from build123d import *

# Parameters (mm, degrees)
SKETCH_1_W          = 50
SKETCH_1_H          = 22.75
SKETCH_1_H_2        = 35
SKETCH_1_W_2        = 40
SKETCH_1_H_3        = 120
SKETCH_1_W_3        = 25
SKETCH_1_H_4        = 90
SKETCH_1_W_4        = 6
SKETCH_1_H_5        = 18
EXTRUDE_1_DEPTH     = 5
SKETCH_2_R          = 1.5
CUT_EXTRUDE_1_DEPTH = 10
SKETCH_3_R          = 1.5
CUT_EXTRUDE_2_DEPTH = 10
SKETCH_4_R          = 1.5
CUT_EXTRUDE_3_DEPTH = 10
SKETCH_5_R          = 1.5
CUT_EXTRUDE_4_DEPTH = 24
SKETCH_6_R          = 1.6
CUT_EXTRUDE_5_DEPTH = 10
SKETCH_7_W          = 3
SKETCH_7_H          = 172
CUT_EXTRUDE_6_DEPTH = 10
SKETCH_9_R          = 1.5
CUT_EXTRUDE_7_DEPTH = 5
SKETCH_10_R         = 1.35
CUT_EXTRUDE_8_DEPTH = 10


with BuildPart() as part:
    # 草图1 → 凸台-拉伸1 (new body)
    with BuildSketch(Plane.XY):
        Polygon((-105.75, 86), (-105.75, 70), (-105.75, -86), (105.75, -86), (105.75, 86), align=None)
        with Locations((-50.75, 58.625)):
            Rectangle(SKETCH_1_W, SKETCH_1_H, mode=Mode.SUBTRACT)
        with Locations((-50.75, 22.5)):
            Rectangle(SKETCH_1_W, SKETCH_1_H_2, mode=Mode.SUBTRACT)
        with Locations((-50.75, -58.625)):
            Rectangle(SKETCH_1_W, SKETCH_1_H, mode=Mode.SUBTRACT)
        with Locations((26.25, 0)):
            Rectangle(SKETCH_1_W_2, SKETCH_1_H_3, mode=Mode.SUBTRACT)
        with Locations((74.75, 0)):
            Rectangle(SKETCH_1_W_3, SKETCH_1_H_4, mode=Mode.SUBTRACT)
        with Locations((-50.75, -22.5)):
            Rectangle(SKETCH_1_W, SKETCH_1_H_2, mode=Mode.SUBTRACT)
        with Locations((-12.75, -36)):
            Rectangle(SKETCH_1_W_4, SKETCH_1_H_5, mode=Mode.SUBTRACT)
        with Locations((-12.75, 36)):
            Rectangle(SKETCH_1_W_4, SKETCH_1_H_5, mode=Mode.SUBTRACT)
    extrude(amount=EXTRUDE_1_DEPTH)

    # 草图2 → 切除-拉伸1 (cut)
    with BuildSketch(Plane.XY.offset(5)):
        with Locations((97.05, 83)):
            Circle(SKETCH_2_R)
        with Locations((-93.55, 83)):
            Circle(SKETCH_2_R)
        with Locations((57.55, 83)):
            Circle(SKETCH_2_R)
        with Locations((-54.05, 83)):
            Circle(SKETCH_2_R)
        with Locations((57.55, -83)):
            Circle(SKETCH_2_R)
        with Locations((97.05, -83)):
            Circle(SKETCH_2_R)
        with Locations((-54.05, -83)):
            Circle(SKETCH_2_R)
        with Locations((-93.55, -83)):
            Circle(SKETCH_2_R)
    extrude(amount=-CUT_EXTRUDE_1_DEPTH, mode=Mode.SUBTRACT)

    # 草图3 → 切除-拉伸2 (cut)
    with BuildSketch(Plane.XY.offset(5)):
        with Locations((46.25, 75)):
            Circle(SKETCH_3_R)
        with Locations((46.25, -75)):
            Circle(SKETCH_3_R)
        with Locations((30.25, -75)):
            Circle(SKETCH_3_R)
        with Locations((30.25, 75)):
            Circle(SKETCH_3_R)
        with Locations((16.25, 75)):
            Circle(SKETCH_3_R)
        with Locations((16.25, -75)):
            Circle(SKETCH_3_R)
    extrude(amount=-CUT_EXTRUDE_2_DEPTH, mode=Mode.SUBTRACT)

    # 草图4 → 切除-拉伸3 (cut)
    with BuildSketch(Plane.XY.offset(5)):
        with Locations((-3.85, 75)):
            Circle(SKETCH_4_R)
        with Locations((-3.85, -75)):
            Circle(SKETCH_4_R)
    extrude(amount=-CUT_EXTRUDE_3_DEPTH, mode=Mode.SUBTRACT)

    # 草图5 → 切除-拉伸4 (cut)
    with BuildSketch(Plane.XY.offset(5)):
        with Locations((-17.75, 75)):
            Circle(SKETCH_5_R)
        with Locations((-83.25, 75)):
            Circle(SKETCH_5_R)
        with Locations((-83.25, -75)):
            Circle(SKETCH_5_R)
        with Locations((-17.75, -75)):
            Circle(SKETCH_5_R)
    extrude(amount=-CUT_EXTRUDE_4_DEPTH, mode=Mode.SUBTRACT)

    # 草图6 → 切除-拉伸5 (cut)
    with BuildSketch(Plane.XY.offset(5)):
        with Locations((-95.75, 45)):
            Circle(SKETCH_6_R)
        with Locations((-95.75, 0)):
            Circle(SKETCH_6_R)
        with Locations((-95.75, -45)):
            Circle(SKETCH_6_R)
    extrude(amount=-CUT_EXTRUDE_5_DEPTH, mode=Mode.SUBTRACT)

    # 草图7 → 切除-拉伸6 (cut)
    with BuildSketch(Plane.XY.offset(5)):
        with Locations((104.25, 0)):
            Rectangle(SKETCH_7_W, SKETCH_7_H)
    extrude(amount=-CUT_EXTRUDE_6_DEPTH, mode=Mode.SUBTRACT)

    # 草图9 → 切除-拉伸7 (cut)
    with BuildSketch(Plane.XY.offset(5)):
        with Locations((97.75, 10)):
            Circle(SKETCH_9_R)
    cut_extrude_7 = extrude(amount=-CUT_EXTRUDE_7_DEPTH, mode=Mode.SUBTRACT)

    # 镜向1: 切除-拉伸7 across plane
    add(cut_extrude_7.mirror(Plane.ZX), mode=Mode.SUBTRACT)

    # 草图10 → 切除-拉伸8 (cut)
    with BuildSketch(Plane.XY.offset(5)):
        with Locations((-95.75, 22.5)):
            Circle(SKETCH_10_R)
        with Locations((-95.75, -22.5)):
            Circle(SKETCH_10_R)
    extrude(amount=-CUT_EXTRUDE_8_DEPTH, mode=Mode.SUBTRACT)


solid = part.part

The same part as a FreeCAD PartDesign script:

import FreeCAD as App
import Part
import Sketcher

V = App.Vector


def add_polygon(sketch, points):
    """Adds a closed chain of lines whose ends are joined by coincident constraints."""
    first, n = sketch.GeometryCount, len(points)
    for a, b in zip(points, points[1:] + points[:1]):
        sketch.addGeometry(Part.LineSegment(App.Vector(*a, 0), App.Vector(*b, 0)), False)
    for i in range(n):
        sketch.addConstraint(Sketcher.Constraint("Coincident", first + i, 2, first + (i + 1) % n, 1))

doc = App.newDocument("Part")
params = doc.addObject("Spreadsheet::Sheet", "Params")
for row, (alias, value) in enumerate([
    ("sketch1_width", "50 mm"),
    ("sketch1_width2", "6 mm"),
    ("sketch1_width3", "40 mm"),
    ("sketch1_width4", "25 mm"),
    ("sketch1_height", "172 mm"),
    ("pad1_length", "5 mm"),
    ("sketch2_diameter", "3 mm"),
    ("pocket1_length", "10 mm"),
    ("sketch3_diameter", "3 mm"),
    ("pocket2_length", "10 mm"),
    ("sketch4_diameter", "3 mm"),
    ("pocket3_length", "10 mm"),
    ("sketch5_diameter", "3 mm"),
    ("pocket4_length", "24 mm"),
    ("sketch6_diameter", "3.2 mm"),
    ("pocket5_length", "10 mm"),
    ("sketch7_width", "3 mm"),
    ("sketch7_height", "172 mm"),
    ("pocket6_length", "10 mm"),
    ("sketch8_diameter", "3 mm"),
    ("pocket7_length", "5 mm"),
    ("sketch9_diameter", "2.7 mm"),
    ("pocket8_length", "10 mm"),
], start=1):
    params.set(f"A{row}", alias)
    params.set(f"B{row}", "=" + value)
    params.setAlias(f"B{row}", alias)

body = doc.addObject("PartDesign::Body", "Body")

sketch1 = doc.addObject("Sketcher::SketchObject", "Sketch")
body.addObject(sketch1)
sketch1.AttachmentSupport = (doc.XY_Plane, [""])
sketch1.MapMode = "FlatFace"
add_polygon(sketch1, [(-106, 86), (-106, -86), (106, -86), (106, 86)])
add_polygon(sketch1, [(-26, -70), (-76, -70), (-76, -47), (-26, -47)])
add_polygon(sketch1, [(-10, -45), (-16, -45), (-16, -27), (-10, -27)])
add_polygon(sketch1, [(-26, -40), (-76, -40), (-76, -5), (-26, -5)])
add_polygon(sketch1, [(-26, 5), (-76, 5), (-76, 40), (-26, 40)])
add_polygon(sketch1, [(-26, 47), (-76, 47), (-76, 70), (-26, 70)])
add_polygon(sketch1, [(-10, 27), (-16, 27), (-16, 45), (-10, 45)])
add_polygon(sketch1, [(46, -60), (6, -60), (6, 60), (46, 60)])
add_polygon(sketch1, [(87, -45), (62, -45), (62, 45), (87, 45)])
sketch1.addConstraint([
    Sketcher.Constraint("Vertical", 0),
    Sketcher.Constraint("Horizontal", 1),
    Sketcher.Constraint("Vertical", 2),
    Sketcher.Constraint("Horizontal", 3),
    Sketcher.Constraint("Horizontal", 4),
    Sketcher.Constraint("Vertical", 5),
    Sketcher.Constraint("Horizontal", 6),
    Sketcher.Constraint("Vertical", 7),
    Sketcher.Constraint("Horizontal", 8),
    Sketcher.Constraint("Vertical", 9),
    Sketcher.Constraint("Horizontal", 10),
    Sketcher.Constraint("Vertical", 11),
    Sketcher.Constraint("Horizontal", 12),
    Sketcher.Constraint("Vertical", 13),
    Sketcher.Constraint("Horizontal", 14),
    Sketcher.Constraint("Vertical", 15),
    Sketcher.Constraint("Horizontal", 16),
    Sketcher.Constraint("Vertical", 17),
    Sketcher.Constraint("Horizontal", 18),
    Sketcher.Constraint("Vertical", 19),
    Sketcher.Constraint("Horizontal", 20),
    Sketcher.Constraint("Vertical", 21),
    Sketcher.Constraint("Horizontal", 22),
    Sketcher.Constraint("Vertical", 23),
    Sketcher.Constraint("Horizontal", 24),
    Sketcher.Constraint("Vertical", 25),
    Sketcher.Constraint("Horizontal", 26),
    Sketcher.Constraint("Vertical", 27),
    Sketcher.Constraint("Horizontal", 28),
    Sketcher.Constraint("Vertical", 29),
    Sketcher.Constraint("Horizontal", 30),
    Sketcher.Constraint("Vertical", 31),
    Sketcher.Constraint("Horizontal", 32),
    Sketcher.Constraint("Vertical", 33),
    Sketcher.Constraint("Horizontal", 34),
    Sketcher.Constraint("Vertical", 35),
    Sketcher.Constraint("Symmetric", 0, 2, 2, 2, -1, 1),
    Sketcher.Constraint("Symmetric", 13, 2, 16, 2, -1),
    Sketcher.Constraint("Symmetric", 15, 2, 18, 2, -1),
    Sketcher.Constraint("Symmetric", 5, 2, 20, 2, -1),
    Sketcher.Constraint("Symmetric", 7, 2, 22, 2, -1),
    Sketcher.Constraint("Symmetric", 9, 2, 24, 2, -1),
    Sketcher.Constraint("Symmetric", 11, 2, 26, 2, -1),
    Sketcher.Constraint("Horizontal", 11, 2, 32, 2),
    Sketcher.Constraint("Horizontal", 26, 2, 33, 2),
    Sketcher.Constraint("Vertical", 5, 2, 12, 2),
    Sketcher.Constraint("Vertical", 7, 2, 14, 2),
    Sketcher.Constraint("DistanceX", 4, 2, 4, 1, 50.0),
    Sketcher.Constraint("DistanceX", 8, 2, 8, 1, 6.0),
    Sketcher.Constraint("DistanceX", 28, 2, 28, 1, 40.0),
    Sketcher.Constraint("DistanceX", 32, 2, 32, 1, 25.0),
    Sketcher.Constraint("DistanceY", 0, 2, 0, 1, 172.0),
    Sketcher.Constraint("DistanceY", 9, 1, 9, 2, 18.0),
    Sketcher.Constraint("DistanceY", 13, 1, 13, 2, 35.0),
    Sketcher.Constraint("DistanceY", 29, 1, 29, 2, 120.0),
    Sketcher.Constraint("DistanceY", 33, 1, 33, 2, 90.0),
    Sketcher.Constraint("DistanceX", 1, 1, 1, 2, 211.5),
    Sketcher.Constraint("DistanceY", 4, 2, -1, 1, 70.0),
    Sketcher.Constraint("DistanceY", 12, 2, -1, 1, 40.0),
    Sketcher.Constraint("DistanceY", 28, 2, -1, 1, 60.0),
    Sketcher.Constraint("DistanceX", 0, 2, 4, 2, 30.0),
    Sketcher.Constraint("DistanceX", 6, 2, 8, 2, 10.0),
    Sketcher.Constraint("DistanceX", 11, 2, 28, 2, 16.0),
    Sketcher.Constraint("DistanceX", 31, 2, 32, 2, 16.0),
    Sketcher.Constraint("DistanceY", 5, 1, 5, 2, 22.75),
])
sketch1.setExpression("Constraints[83]", "Params.sketch1_width")
sketch1.setExpression("Constraints[84]", "Params.sketch1_width2")
sketch1.setExpression("Constraints[85]", "Params.sketch1_width3")
sketch1.setExpression("Constraints[86]", "Params.sketch1_width4")
sketch1.setExpression("Constraints[87]", "Params.sketch1_height")
pad1 = doc.addObject("PartDesign::Pad", "Pad")
body.addObject(pad1)
pad1.Profile = sketch1
pad1.setExpression("Length", "Params.pad1_length")

sketch2 = doc.addObject("Sketcher::SketchObject", "Sketch001")
body.addObject(sketch2)
sketch2.AttachmentSupport = (doc.XY_Plane, [""])
sketch2.MapMode = "FlatFace"
sketch2.AttachmentOffset = App.Placement(V(0, 0, 5), App.Rotation())
sketch2.addGeometry([
    Part.Circle(V(97, 83, 0), V(0, 0, 1), 1.5),
    Part.Circle(V(-93.5, 83, 0), V(0, 0, 1), 1.5),
    Part.Circle(V(57.5, 83, 0), V(0, 0, 1), 1.5),
    Part.Circle(V(-54, 83, 0), V(0, 0, 1), 1.5),
    Part.Circle(V(57.5, -83, 0), V(0, 0, 1), 1.5),
    Part.Circle(V(97, -83, 0), V(0, 0, 1), 1.5),
    Part.Circle(V(-54, -83, 0), V(0, 0, 1), 1.5),
    Part.Circle(V(-93.5, -83, 0), V(0, 0, 1), 1.5),
], False)
sketch2.addConstraint([
    Sketcher.Constraint("Equal", 0, 1),
    Sketcher.Constraint("Equal", 1, 2),
    Sketcher.Constraint("Equal", 2, 3),
    Sketcher.Constraint("Equal", 3, 4),
    Sketcher.Constraint("Equal", 4, 5),
    Sketcher.Constraint("Equal", 5, 6),
    Sketcher.Constraint("Equal", 6, 7),
    Sketcher.Constraint("Symmetric", 2, 3, 4, 3, -1),
    Sketcher.Constraint("Symmetric", 0, 3, 5, 3, -1),
    Sketcher.Constraint("Symmetric", 3, 3, 6, 3, -1),
    Sketcher.Constraint("Symmetric", 1, 3, 7, 3, -1),
    Sketcher.Constraint("Horizontal", 0, 3, 1, 3),
    Sketcher.Constraint("Horizontal", 1, 3, 2, 3),
    Sketcher.Constraint("Horizontal", 2, 3, 3, 3),
    Sketcher.Constraint("Diameter", 0, 3.0),
    Sketcher.Constraint("DistanceY", -1, 1, 0, 3, 83.0),
    Sketcher.Constraint("DistanceX", 1, 3, 0, 3, 190.6),
    Sketcher.Constraint("DistanceX", 2, 3, 0, 3, 39.5),
    Sketcher.Constraint("DistanceX", 1, 3, 3, 3, 39.5),
    Sketcher.Constraint("DistanceX", -1, 1, 0, 3, 97.05),
])
sketch2.setExpression("Constraints[14]", "Params.sketch2_diameter")
pocket1 = doc.addObject("PartDesign::Pocket", "Pocket")
body.addObject(pocket1)
pocket1.Profile = sketch2
pocket1.setExpression("Length", "Params.pocket1_length")

sketch3 = doc.addObject("Sketcher::SketchObject", "Sketch002")
body.addObject(sketch3)
sketch3.AttachmentSupport = (doc.XY_Plane, [""])
sketch3.MapMode = "FlatFace"
sketch3.AttachmentOffset = App.Placement(V(0, 0, 5), App.Rotation())
sketch3.addGeometry([
    Part.Circle(V(46.2, 75, 0), V(0, 0, 1), 1.5),
    Part.Circle(V(46.2, -75, 0), V(0, 0, 1), 1.5),
    Part.Circle(V(30.2, -75, 0), V(0, 0, 1), 1.5),
    Part.Circle(V(30.2, 75, 0), V(0, 0, 1), 1.5),
    Part.Circle(V(16.2, 75, 0), V(0, 0, 1), 1.5),
    Part.Circle(V(16.2, -75, 0), V(0, 0, 1), 1.5),
], False)
sketch3.addConstraint([
    Sketcher.Constraint("Equal", 0, 1),
    Sketcher.Constraint("Equal", 1, 2),
    Sketcher.Constraint("Equal", 2, 3),
    Sketcher.Constraint("Equal", 3, 4),
    Sketcher.Constraint("Equal", 4, 5),
    Sketcher.Constraint("Symmetric", 0, 3, 1, 3, -1),
    Sketcher.Constraint("Symmetric", 2, 3, 3, 3, -1),
    Sketcher.Constraint("Symmetric", 4, 3, 5, 3, -1),
    Sketcher.Constraint("Horizontal", 1, 3, 2, 3),
    Sketcher.Constraint("Horizontal", 3, 3, 4, 3),
    Sketcher.Constraint("Diameter", 0, 3.0),
    Sketcher.Constraint("DistanceY", -1, 1, 0, 3, 75.0),
    Sketcher.Constraint("DistanceX", 2, 3, 1, 3, 16.0),
    Sketcher.Constraint("DistanceX", 4, 3, 3, 3, 14.0),
    Sketcher.Constraint("DistanceX", -1, 1, 0, 3, 46.25),
])
sketch3.setExpression("Constraints[10]", "Params.sketch3_diameter")
pocket2 = doc.addObject("PartDesign::Pocket", "Pocket001")
body.addObject(pocket2)
pocket2.Profile = sketch3
pocket2.setExpression("Length", "Params.pocket2_length")

sketch4 = doc.addObject("Sketcher::SketchObject", "Sketch003")
body.addObject(sketch4)
sketch4.AttachmentSupport = (doc.XY_Plane, [""])
sketch4.MapMode = "FlatFace"
sketch4.AttachmentOffset = App.Placement(V(0, 0, 5), App.Rotation())
sketch4.addGeometry([
    Part.Circle(V(-3.9, 75, 0), V(0, 0, 1), 1.5),
    Part.Circle(V(-3.9, -75, 0), V(0, 0, 1), 1.5),
], False)
sketch4.addConstraint([
    Sketcher.Constraint("Equal", 0, 1),
    Sketcher.Constraint("Symmetric", 0, 3, 1, 3, -1),
    Sketcher.Constraint("Diameter", 0, 3.0),
    Sketcher.Constraint("DistanceY", -1, 1, 0, 3, 75.0),
    Sketcher.Constraint("DistanceX", 0, 3, -1, 1, 3.85),
])
sketch4.setExpression("Constraints[2]", "Params.sketch4_diameter")
pocket3 = doc.addObject("PartDesign::Pocket", "Pocket002")
body.addObject(pocket3)
pocket3.Profile = sketch4
pocket3.setExpression("Length", "Params.pocket3_length")

sketch5 = doc.addObject("Sketcher::SketchObject", "Sketch004")
body.addObject(sketch5)
sketch5.AttachmentSupport = (doc.XY_Plane, [""])
sketch5.MapMode = "FlatFace"
sketch5.AttachmentOffset = App.Placement(V(0, 0, 5), App.Rotation())
sketch5.addGeometry([
    Part.Circle(V(-17.8, 75, 0), V(0, 0, 1), 1.5),
    Part.Circle(V(-83.2, 75, 0), V(0, 0, 1), 1.5),
    Part.Circle(V(-83.2, -75, 0), V(0, 0, 1), 1.5),
    Part.Circle(V(-17.8, -75, 0), V(0, 0, 1), 1.5),
], False)
sketch5.addConstraint([
    Sketcher.Constraint("Equal", 0, 1),
    Sketcher.Constraint("Equal", 1, 2),
    Sketcher.Constraint("Equal", 2, 3),
    Sketcher.Constraint("Symmetric", 1, 3, 2, 3, -1),
    Sketcher.Constraint("Symmetric", 0, 3, 3, 3, -1),
    Sketcher.Constraint("Horizontal", 0, 3, 1, 3),
    Sketcher.Constraint("Diameter", 0, 3.0),
    Sketcher.Constraint("DistanceY", -1, 1, 0, 3, 75.0),
    Sketcher.Constraint("DistanceX", 1, 3, 0, 3, 65.5),
    Sketcher.Constraint("DistanceX", 0, 3, -1, 1, 17.75),
])
sketch5.setExpression("Constraints[6]", "Params.sketch5_diameter")
pocket4 = doc.addObject("PartDesign::Pocket", "Pocket003")
body.addObject(pocket4)
pocket4.Profile = sketch5
pocket4.setExpression("Length", "Params.pocket4_length")

sketch6 = doc.addObject("Sketcher::SketchObject", "Sketch005")
body.addObject(sketch6)
sketch6.AttachmentSupport = (doc.XY_Plane, [""])
sketch6.MapMode = "FlatFace"
sketch6.AttachmentOffset = App.Placement(V(0, 0, 5), App.Rotation())
sketch6.addGeometry([
    Part.Circle(V(-95.8, 45, 0), V(0, 0, 1), 1.6),
    Part.Circle(V(-95.8, 0, 0), V(0, 0, 1), 1.6),
    Part.Circle(V(-95.8, -45, 0), V(0, 0, 1), 1.6),
], False)
sketch6.addConstraint([
    Sketcher.Constraint("Equal", 0, 1),
    Sketcher.Constraint("Equal", 1, 2),
    Sketcher.Constraint("Symmetric", 0, 3, 2, 3, -1),
    Sketcher.Constraint("PointOnObject", 1, 3, -1),
    Sketcher.Constraint("Vertical", 0, 3, 1, 3),
    Sketcher.Constraint("Diameter", 0, 3.2),
    Sketcher.Constraint("DistanceY", -1, 1, 0, 3, 45.0),
    Sketcher.Constraint("DistanceX", 0, 3, -1, 1, 95.75),
])
sketch6.setExpression("Constraints[5]", "Params.sketch6_diameter")
pocket5 = doc.addObject("PartDesign::Pocket", "Pocket004")
body.addObject(pocket5)
pocket5.Profile = sketch6
pocket5.setExpression("Length", "Params.pocket5_length")

sketch7 = doc.addObject("Sketcher::SketchObject", "Sketch006")
body.addObject(sketch7)
sketch7.AttachmentSupport = (doc.XY_Plane, [""])
sketch7.MapMode = "FlatFace"
sketch7.AttachmentOffset = App.Placement(V(0, 0, 5), App.Rotation())
add_polygon(sketch7, [(102.8, 86), (102.8, -86), (105.8, -86), (105.8, 86)])
sketch7.addConstraint([
    Sketcher.Constraint("Vertical", 0),
    Sketcher.Constraint("Horizontal", 1),
    Sketcher.Constraint("Vertical", 2),
    Sketcher.Constraint("Horizontal", 3),
    Sketcher.Constraint("DistanceX", 1, 1, 1, 2, 3.0),
    Sketcher.Constraint("DistanceY", 0, 2, 0, 1, 172.0),
    Sketcher.Constraint("DistanceY", 0, 2, -1, 1, 86.0),
    Sketcher.Constraint("DistanceX", -1, 1, 0, 2, 102.75),
])
sketch7.setExpression("Constraints[8]", "Params.sketch7_width")
sketch7.setExpression("Constraints[9]", "Params.sketch7_height")
pocket6 = doc.addObject("PartDesign::Pocket", "Pocket005")
body.addObject(pocket6)
pocket6.Profile = sketch7
pocket6.setExpression("Length", "Params.pocket6_length")

sketch8 = doc.addObject("Sketcher::SketchObject", "Sketch007")
body.addObject(sketch8)
sketch8.AttachmentSupport = (doc.XY_Plane, [""])
sketch8.MapMode = "FlatFace"
sketch8.AttachmentOffset = App.Placement(V(0, 0, 5), App.Rotation())
sketch8.addGeometry(Part.Circle(V(97.8, 10, 0), V(0, 0, 1), 1.5), False)
sketch8.addConstraint([
    Sketcher.Constraint("Diameter", 0, 3.0),
    Sketcher.Constraint("DistanceY", -1, 1, 0, 3, 10.0),
    Sketcher.Constraint("DistanceX", -1, 1, 0, 3, 97.75),
])
sketch8.setExpression("Constraints[0]", "Params.sketch8_diameter")
pocket7 = doc.addObject("PartDesign::Pocket", "Pocket006")
body.addObject(pocket7)
pocket7.Profile = sketch8
pocket7.setExpression("Length", "Params.pocket7_length")
doc.recompute()

mirrored = doc.addObject("PartDesign::Mirrored", "Mirrored")
body.addObject(mirrored)
mirrored.Originals = [pocket7]
mirrored.MirrorPlane = (doc.XZ_Plane, [""])
body.Tip = mirrored

sketch9 = doc.addObject("Sketcher::SketchObject", "Sketch008")
body.addObject(sketch9)
sketch9.AttachmentSupport = (doc.XY_Plane, [""])
sketch9.MapMode = "FlatFace"
sketch9.AttachmentOffset = App.Placement(V(0, 0, 5), App.Rotation())
sketch9.addGeometry([
    Part.Circle(V(-95.8, 22.5, 0), V(0, 0, 1), 1.4),
    Part.Circle(V(-95.8, -22.5, 0), V(0, 0, 1), 1.4),
], False)
sketch9.addConstraint([
    Sketcher.Constraint("Equal", 0, 1),
    Sketcher.Constraint("Symmetric", 0, 3, 1, 3, -1),
    Sketcher.Constraint("Diameter", 0, 2.7),
    Sketcher.Constraint("DistanceY", 1, 3, 0, 3, 45.0),
    Sketcher.Constraint("DistanceX", 0, 3, -1, 1, 95.75),
])
sketch9.setExpression("Constraints[2]", "Params.sketch9_diameter")
pocket8 = doc.addObject("PartDesign::Pocket", "Pocket007")
body.addObject(pocket8)
pocket8.Profile = sketch9
pocket8.setExpression("Length", "Params.pocket8_length")

doc.recompute()
